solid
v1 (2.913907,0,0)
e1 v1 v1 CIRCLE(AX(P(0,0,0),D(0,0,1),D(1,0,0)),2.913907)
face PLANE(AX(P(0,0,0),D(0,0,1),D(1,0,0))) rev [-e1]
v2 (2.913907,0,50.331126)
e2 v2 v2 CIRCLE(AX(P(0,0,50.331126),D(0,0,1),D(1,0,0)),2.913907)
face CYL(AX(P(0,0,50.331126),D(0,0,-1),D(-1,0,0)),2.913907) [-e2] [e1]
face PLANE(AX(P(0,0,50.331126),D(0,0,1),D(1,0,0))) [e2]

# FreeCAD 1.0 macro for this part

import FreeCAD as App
import Part
import Sketcher

doc = App.newDocument("Part")
body = doc.addObject("PartDesign::Body", "Body")

# Sketch on XY plane
sketch1 = doc.addObject("Sketcher::SketchObject", "Sketch")
body.addObject(sketch1)
sketch1.AttachmentSupport = (doc.XY_Plane, [""])
sketch1.MapMode = "FlatFace"
sketch1.addGeometry(Part.Circle(App.Vector(0, 0, 0), App.Vector(0, 0, 1), 2.9), False)
sketch1.addConstraint([
    Sketcher.Constraint("Coincident", 0, 3, -1, 1),
    Sketcher.Constraint("Diameter", 0, 5.827815),
])
pad1 = doc.addObject("PartDesign::Pad", "Pad")
body.addObject(pad1)
pad1.Profile = sketch1
pad1.Length = 50.331126

doc.recompute()
